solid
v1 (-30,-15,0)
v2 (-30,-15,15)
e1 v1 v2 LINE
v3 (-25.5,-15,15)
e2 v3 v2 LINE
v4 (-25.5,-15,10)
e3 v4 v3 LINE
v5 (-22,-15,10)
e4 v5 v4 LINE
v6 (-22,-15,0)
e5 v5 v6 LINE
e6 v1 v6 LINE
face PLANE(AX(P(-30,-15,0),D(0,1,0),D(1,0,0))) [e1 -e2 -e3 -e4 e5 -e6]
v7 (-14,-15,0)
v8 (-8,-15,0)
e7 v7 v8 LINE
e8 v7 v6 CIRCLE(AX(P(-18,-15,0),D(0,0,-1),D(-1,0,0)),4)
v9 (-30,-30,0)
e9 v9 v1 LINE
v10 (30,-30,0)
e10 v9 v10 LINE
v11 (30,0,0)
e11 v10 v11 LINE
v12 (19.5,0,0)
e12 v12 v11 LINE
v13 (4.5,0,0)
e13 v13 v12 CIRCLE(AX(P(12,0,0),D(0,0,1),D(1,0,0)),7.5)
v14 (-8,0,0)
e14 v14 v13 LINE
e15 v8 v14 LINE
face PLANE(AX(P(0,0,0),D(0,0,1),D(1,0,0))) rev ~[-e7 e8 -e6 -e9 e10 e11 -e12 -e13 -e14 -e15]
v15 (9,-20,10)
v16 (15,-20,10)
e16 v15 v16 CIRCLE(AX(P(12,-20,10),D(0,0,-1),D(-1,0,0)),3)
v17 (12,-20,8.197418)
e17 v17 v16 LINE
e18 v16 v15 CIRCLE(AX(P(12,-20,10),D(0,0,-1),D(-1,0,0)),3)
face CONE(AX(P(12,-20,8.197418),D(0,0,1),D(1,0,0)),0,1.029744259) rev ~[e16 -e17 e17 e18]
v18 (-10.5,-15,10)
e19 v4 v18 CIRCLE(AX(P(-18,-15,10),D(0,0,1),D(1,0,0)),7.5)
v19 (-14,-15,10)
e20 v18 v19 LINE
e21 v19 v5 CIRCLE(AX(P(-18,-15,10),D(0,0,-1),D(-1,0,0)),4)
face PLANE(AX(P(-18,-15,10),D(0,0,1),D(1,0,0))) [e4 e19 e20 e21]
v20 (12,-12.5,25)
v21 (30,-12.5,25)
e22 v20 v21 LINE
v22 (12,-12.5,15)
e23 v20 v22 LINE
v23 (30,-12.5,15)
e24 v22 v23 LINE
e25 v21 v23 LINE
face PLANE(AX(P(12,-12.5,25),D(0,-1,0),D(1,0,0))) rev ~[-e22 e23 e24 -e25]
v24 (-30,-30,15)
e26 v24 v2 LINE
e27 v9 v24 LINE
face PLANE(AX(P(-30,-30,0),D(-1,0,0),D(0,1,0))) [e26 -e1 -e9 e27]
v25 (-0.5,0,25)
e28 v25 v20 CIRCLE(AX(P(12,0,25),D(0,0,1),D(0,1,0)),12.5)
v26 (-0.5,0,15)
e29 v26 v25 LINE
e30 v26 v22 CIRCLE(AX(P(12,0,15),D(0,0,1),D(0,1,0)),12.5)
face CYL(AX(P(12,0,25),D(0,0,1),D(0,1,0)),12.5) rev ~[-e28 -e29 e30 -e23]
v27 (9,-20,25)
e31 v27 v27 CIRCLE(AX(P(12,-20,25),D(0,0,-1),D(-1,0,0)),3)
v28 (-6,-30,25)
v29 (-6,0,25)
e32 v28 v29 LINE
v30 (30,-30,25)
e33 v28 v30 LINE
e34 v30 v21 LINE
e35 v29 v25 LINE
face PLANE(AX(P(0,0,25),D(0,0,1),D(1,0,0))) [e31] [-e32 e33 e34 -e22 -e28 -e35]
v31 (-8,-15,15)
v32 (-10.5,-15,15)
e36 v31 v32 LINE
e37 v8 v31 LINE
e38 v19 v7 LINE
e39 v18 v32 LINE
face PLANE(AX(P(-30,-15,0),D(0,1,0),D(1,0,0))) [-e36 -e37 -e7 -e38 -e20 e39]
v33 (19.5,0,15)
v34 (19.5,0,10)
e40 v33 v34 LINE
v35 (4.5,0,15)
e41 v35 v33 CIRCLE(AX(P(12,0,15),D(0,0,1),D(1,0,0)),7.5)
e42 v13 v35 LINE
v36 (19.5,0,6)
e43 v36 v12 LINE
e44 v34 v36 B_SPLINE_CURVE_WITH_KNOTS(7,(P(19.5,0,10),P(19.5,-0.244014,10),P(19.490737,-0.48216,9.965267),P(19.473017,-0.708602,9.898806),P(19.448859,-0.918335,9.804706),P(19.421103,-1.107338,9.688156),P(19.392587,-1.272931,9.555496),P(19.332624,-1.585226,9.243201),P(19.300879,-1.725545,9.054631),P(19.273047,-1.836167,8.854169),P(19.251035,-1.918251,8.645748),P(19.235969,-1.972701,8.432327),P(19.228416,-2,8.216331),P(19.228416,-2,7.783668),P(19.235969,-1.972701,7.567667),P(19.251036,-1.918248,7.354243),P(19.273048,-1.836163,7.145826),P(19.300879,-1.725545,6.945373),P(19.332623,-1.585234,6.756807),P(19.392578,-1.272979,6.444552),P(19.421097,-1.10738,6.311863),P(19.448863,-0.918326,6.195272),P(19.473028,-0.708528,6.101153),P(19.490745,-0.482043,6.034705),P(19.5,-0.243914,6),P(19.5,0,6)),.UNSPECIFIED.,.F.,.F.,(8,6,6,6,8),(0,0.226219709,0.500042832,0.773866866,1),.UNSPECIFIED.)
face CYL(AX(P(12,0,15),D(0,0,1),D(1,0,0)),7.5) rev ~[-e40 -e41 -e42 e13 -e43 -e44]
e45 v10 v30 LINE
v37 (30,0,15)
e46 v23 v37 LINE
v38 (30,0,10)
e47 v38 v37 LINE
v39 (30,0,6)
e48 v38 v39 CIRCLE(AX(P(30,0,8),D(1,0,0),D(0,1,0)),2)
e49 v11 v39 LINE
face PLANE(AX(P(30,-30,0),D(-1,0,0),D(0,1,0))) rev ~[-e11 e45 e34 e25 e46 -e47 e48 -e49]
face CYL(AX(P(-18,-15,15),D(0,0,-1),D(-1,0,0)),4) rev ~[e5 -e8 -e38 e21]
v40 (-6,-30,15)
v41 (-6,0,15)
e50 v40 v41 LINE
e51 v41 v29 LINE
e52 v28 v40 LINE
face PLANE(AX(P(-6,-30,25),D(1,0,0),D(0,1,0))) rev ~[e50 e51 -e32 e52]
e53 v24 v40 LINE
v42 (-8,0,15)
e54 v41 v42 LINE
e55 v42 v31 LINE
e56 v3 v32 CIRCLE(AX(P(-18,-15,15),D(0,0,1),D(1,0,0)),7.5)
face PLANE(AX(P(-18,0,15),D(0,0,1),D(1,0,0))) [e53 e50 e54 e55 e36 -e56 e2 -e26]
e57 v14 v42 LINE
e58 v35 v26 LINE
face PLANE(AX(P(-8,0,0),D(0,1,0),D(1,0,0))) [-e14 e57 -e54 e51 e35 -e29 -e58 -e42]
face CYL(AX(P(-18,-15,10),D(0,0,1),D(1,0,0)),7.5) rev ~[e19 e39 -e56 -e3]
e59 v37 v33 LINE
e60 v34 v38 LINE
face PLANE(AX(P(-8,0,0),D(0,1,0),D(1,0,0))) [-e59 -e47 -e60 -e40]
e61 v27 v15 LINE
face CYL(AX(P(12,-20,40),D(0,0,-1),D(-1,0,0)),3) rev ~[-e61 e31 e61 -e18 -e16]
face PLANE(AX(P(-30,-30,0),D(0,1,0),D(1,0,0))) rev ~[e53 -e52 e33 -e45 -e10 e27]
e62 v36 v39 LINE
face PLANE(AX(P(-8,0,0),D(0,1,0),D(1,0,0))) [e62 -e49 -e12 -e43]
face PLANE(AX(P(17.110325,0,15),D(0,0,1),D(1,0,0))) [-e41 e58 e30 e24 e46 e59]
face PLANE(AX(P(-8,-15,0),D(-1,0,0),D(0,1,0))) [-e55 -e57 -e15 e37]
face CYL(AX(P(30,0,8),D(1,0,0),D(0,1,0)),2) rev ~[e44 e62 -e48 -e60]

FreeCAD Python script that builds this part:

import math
import FreeCAD as App
import Part
import Sketcher

V = App.Vector


def add_polygon(sketch, points):
    """Adds a closed chain of lines whose ends are joined by coincident constraints."""
    first, n = sketch.GeometryCount, len(points)
    for a, b in zip(points, points[1:] + points[:1]):
        sketch.addGeometry(Part.LineSegment(App.Vector(*a, 0), App.Vector(*b, 0)), False)
    for i in range(n):
        sketch.addConstraint(Sketcher.Constraint("Coincident", first + i, 2, first + (i + 1) % n, 1))

doc = App.newDocument("Part")
body = doc.addObject("PartDesign::Body", "Body")

# Sketch on XY plane
sketch1 = body.newObject("Sketcher::SketchObject", "Sketch")
sketch1.AttachmentSupport = (doc.getObject("XY_Plane"), [""])
sketch1.MapMode = "FlatFace"
add_polygon(sketch1, [(-30, 30), (-30, -30), (30, -30), (30, 30)])  # lines 0-3
sketch1.addConstraint([
    Sketcher.Constraint("Vertical", 0),
    Sketcher.Constraint("Horizontal", 1),
    Sketcher.Constraint("Vertical", 2),
    Sketcher.Constraint("Horizontal", 3),
    Sketcher.Constraint("Symmetric", 0, 2, 2, 2, -1, 1),
    Sketcher.Constraint("Equal", 3, 0),
    Sketcher.Constraint("DistanceX", 1, 1, 1, 2, 60.0),
])
pad1 = body.newObject("PartDesign::Pad", "Pad")
pad1.Profile = sketch1
pad1.Length = 25

# Sketch on XY plane
sketch2 = body.newObject("Sketcher::SketchObject", "Sketch001")
sketch2.AttachmentSupport = (doc.getObject("XY_Plane"), [""])
sketch2.MapMode = "FlatFace"
sketch2.AttachmentOffset = App.Placement(V(0, 0, 25), App.Rotation())
add_polygon(sketch2, [(-30, 30), (-30, -30), (-6, -30), (-6, 30)])  # lines 0-3
sketch2.addGeometry(Part.LineSegment(V(30, -12, 0), V(30, 12, 0)), False)  # 4
sketch2.addGeometry(Part.LineSegment(V(30, 12, 0), V(12, 12, 0)), False)  # 5
sketch2.addGeometry(Part.ArcOfCircle(Part.Circle(V(12, 0, 0), V(0, 0, 1), 12), math.radians(90), math.radians(270)), False)  # 6
sketch2.addGeometry(Part.LineSegment(V(12, -12, 0), V(30, -12, 0)), False)  # 7
sketch2.addConstraint([
    Sketcher.Constraint("Coincident", 4, 2, 5, 1),
    Sketcher.Constraint("Tangent", 5, 2, 6, 1),
    Sketcher.Constraint("Tangent", 6, 2, 7, 1),
    Sketcher.Constraint("Coincident", 7, 2, 4, 1),
    Sketcher.Constraint("Vertical", 0),
    Sketcher.Constraint("Horizontal", 1),
    Sketcher.Constraint("Vertical", 2),
    Sketcher.Constraint("Horizontal", 3),
    Sketcher.Constraint("Vertical", 4),
    Sketcher.Constraint("Horizontal", 5),
    Sketcher.Constraint("Horizontal", 7),
    Sketcher.Constraint("PointOnObject", 6, 3, -1),
    Sketcher.Constraint("Radius", 6, 12.5),
    Sketcher.Constraint("DistanceX", 1, 1, 1, 2, 24.0),
    Sketcher.Constraint("DistanceX", 5, 2, 5, 1, 18.0),
    Sketcher.Constraint("DistanceY", 0, 2, 0, 1, 60.0),
    Sketcher.Constraint("DistanceX", -1, 1, 6, 3, 12.0),
    Sketcher.Constraint("DistanceX", 0, 2, -1, 1, 30.0),
    Sketcher.Constraint("DistanceY", 0, 2, -1, 1, 30.0),
])
pocket1 = body.newObject("PartDesign::Pocket", "Pocket")
pocket1.Profile = sketch2
pocket1.Length = 10

# Sketch on XY plane
sketch3 = body.newObject("Sketcher::SketchObject", "Sketch002")
sketch3.AttachmentSupport = (doc.getObject("XY_Plane"), [""])
sketch3.MapMode = "FlatFace"
sketch3.AttachmentOffset = App.Placement(V(0, 0, 15), App.Rotation())
sketch3.addGeometry([
    Part.Circle(V(-18, 15, 0), V(0, 0, 1), 4),
    Part.Circle(V(-18, -15, 0), V(0, 0, 1), 4),
], False)
sketch3.addConstraint([
    Sketcher.Constraint("Equal", 0, 1),
    Sketcher.Constraint("Symmetric", 0, 3, 1, 3, -1),
    Sketcher.Constraint("Diameter", 0, 8.0),
    Sketcher.Constraint("DistanceX", 0, 3, -1, 1, 18.0),
    Sketcher.Constraint("DistanceY", -1, 1, 0, 3, 15.0),
])
doc.recompute()
hole = body.newObject("PartDesign::Hole", "Hole")
hole.Profile = sketch3
hole.ThreadType = "None"
hole.Diameter = 8
hole.DepthType = "ThroughAll"
hole.HoleCutType = "Counterbore"
hole.HoleCutDiameter = 15
hole.HoleCutDepth = 5

# Sketch on XY plane
sketch4 = body.newObject("Sketcher::SketchObject", "Sketch003")
sketch4.AttachmentSupport = (doc.getObject("XY_Plane"), [""])
sketch4.MapMode = "FlatFace"
sketch4.AttachmentOffset = App.Placement(V(0, 0, 15), App.Rotation())
sketch4.addGeometry(Part.Circle(V(12, 0, 0), V(0, 0, 1), 8), False)
sketch4.addConstraint([
    Sketcher.Constraint("PointOnObject", 0, 3, -1),
    Sketcher.Constraint("Diameter", 0, 15.0),
    Sketcher.Constraint("DistanceX", -1, 1, 0, 3, 12.0),
])
pocket2 = body.newObject("PartDesign::Pocket", "Pocket001")
pocket2.Profile = sketch4
pocket2.Type = "ThroughAll"

# Sketch on XY plane
sketch5 = body.newObject("Sketcher::SketchObject", "Sketch004")
sketch5.AttachmentSupport = (doc.getObject("XY_Plane"), [""])
sketch5.MapMode = "FlatFace"
sketch5.AttachmentOffset = App.Placement(V(0, 0, 25), App.Rotation())
sketch5.addGeometry([
    Part.Circle(V(12, 20, 0), V(0, 0, 1), 3),
    Part.Circle(V(12, -20, 0), V(0, 0, 1), 3),
], False)
sketch5.addConstraint([
    Sketcher.Constraint("Equal", 0, 1),
    Sketcher.Constraint("Symmetric", 0, 3, 1, 3, -1),
    Sketcher.Constraint("Diameter", 0, 6.0),
    Sketcher.Constraint("DistanceX", -1, 1, 0, 3, 12.0),
    Sketcher.Constraint("DistanceY", -1, 1, 0, 3, 20.0),
])
doc.recompute()
hole2 = body.newObject("PartDesign::Hole", "Hole001")
hole2.Profile = sketch5
hole2.ThreadType = "None"
hole2.Diameter = 6
hole2.DepthType = "Dimension"
hole2.Depth = 15
hole2.DrillPoint = "Angled"
hole2.DrillPointAngle = 118

# Sketch on YZ plane
sketch6 = body.newObject("Sketcher::SketchObject", "Sketch005")
sketch6.AttachmentSupport = (doc.getObject("YZ_Plane"), [""])
sketch6.MapMode = "FlatFace"
sketch6.AttachmentOffset = App.Placement(V(0, 0, 30), App.Rotation())
sketch6.addGeometry(Part.Circle(V(0, 8, 0), V(0, 0, 1), 2), False)
sketch6.addConstraint([
    Sketcher.Constraint("PointOnObject", 0, 3, -2),
    Sketcher.Constraint("Diameter", 0, 4.0),
    Sketcher.Constraint("DistanceY", -1, 1, 0, 3, 8.0),
])
pocket3 = body.newObject("PartDesign::Pocket", "Pocket002")
pocket3.Profile = sketch6
pocket3.Length = 10.772584

# Sketch on XY plane
sketch7 = body.newObject("Sketcher::SketchObject", "Sketch006")
sketch7.AttachmentSupport = (doc.getObject("XY_Plane"), [""])
sketch7.MapMode = "FlatFace"
add_polygon(sketch7, [(-8, 0), (30, 0), (30, 30), (-30, 30), (-30, -15), (-8, -15)])  # lines 0-5
sketch7.addConstraint([
    Sketcher.Constraint("Horizontal", 0),
    Sketcher.Constraint("Vertical", 1),
    Sketcher.Constraint("Horizontal", 2),
    Sketcher.Constraint("Vertical", 3),
    Sketcher.Constraint("Horizontal", 4),
    Sketcher.Constraint("Vertical", 5),
    Sketcher.Constraint("PointOnObject", 0, 2, -1),
    Sketcher.Constraint("DistanceX", 0, 1, 0, 2, 38.0),
    Sketcher.Constraint("DistanceX", 2, 2, 2, 1, 60.0),
    Sketcher.Constraint("DistanceY", 1, 1, 1, 2, 30.0),
    Sketcher.Constraint("DistanceY", 3, 2, 3, 1, 45.0),
    Sketcher.Constraint("DistanceX", -1, 1, 0, 2, 30.0),
])
pocket4 = body.newObject("PartDesign::Pocket", "Pocket003")
pocket4.Profile = sketch7
pocket4.Type = "ThroughAll"
pocket4.Reversed = True

doc.recompute()
